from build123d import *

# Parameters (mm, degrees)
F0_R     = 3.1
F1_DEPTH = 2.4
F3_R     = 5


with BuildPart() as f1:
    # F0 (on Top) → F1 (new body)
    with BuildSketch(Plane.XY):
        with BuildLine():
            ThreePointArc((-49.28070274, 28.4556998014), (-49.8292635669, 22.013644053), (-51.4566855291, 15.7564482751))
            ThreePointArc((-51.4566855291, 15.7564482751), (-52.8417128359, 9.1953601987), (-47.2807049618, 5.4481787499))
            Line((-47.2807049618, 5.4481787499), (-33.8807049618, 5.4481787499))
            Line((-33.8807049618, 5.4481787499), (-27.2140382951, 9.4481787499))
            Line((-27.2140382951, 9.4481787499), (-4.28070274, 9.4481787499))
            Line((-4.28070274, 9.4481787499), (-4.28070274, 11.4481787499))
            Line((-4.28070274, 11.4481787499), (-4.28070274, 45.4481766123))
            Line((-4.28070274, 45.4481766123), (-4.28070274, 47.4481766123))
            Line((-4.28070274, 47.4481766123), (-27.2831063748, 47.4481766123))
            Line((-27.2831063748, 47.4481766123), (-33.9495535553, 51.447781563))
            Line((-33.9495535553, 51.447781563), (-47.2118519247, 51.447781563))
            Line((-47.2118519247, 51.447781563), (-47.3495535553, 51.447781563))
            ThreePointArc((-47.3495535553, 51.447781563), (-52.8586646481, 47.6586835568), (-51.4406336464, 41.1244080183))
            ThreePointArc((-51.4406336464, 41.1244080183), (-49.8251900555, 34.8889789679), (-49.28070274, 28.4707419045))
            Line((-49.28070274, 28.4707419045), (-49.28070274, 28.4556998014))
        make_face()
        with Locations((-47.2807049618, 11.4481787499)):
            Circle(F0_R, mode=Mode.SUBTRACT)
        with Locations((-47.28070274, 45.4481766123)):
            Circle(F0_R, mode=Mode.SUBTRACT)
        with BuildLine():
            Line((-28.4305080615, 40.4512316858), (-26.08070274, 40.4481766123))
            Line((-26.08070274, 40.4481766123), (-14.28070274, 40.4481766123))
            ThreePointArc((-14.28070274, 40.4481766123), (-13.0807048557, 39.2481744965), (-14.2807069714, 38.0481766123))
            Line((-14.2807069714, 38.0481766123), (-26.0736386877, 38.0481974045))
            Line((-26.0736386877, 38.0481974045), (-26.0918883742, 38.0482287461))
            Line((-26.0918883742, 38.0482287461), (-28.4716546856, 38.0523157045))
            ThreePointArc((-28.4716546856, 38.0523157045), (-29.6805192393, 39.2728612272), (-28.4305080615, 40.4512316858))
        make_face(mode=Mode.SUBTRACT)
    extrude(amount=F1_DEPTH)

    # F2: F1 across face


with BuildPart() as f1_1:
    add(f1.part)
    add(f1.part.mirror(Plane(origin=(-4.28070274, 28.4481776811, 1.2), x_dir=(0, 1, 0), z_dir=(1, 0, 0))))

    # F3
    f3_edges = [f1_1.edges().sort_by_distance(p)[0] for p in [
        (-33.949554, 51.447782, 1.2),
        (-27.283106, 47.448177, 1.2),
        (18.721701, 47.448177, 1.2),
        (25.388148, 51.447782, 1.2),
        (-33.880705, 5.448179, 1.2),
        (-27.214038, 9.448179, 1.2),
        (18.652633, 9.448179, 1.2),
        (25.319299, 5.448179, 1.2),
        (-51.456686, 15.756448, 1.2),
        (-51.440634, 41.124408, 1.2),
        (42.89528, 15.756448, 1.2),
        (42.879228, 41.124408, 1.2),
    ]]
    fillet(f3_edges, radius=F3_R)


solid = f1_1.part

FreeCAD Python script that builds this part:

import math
import FreeCAD as App
import Part
import Sketcher
from FreeCAD import Vector
Q = App.Units.Quantity


def edges_at(feature, points):
    """Names of the edges that pass closest to the given points."""
    edges = feature.Shape.Edges
    near = lambda p: min(range(len(edges)), key=lambda i: edges[i].distToShape(Part.Vertex(*p))[0])
    return sorted({f"Edge{near(p) + 1}" for p in points})

doc = App.newDocument("Part")
params = doc.addObject("Spreadsheet::Sheet", "Params")
for row, (alias, value) in enumerate([
    ("sketch1_radius", "6 mm"),
    ("sketch1_radius2", "6 mm"),
    ("sketch1_diameter", "6.2 mm"),
    ("sketch1_diameter2", "6.2 mm"),
    ("sketch1_radius3", "1.2 mm"),
    ("pad1_length", "2.4 mm"),
    ("fillet_radius", "5 mm"),
], start=1):
    params.set(f"A{row}", alias)
    params.set(f"B{row}", "=" + value)
    params.setAlias(f"B{row}", alias)

body = doc.addObject("PartDesign::Body", "Body")

sketch1 = body.newObject("Sketcher::SketchObject", "Sketch")
sketch1.AttachmentSupport = (doc.getObject("XY_Plane"), [""])
sketch1.MapMode = "FlatFace"
sketch1.addGeometry(Part.ArcOfCircle(Part.Circle(Vector(-87.469634, 28.463221, 0), Vector(0, 0, 1), 38.188932), math.radians(-19.434829), math.radians(-0.011284)), False)
sketch1.addGeometry(Part.ArcOfCircle(Part.Circle(Vector(-47.280705, 11.448179, 0), Vector(0, 0, 1), 6), math.radians(134.1067), math.radians(270)), False)
sketch1.addGeometry(Part.LineSegment(Vector(-47.280705, 5.448179, 0), Vector(-33.880705, 5.448179, 0)), False)
sketch1.addGeometry(Part.LineSegment(Vector(-33.880705, 5.448179, 0), Vector(-27.214038, 9.448179, 0)), False)
sketch1.addGeometry(Part.LineSegment(Vector(-27.214038, 9.448179, 0), Vector(-4.280703, 9.448179, 0)), False)
sketch1.addGeometry(Part.LineSegment(Vector(-4.280703, 9.448179, 0), Vector(-4.280703, 47.448177, 0)), False)
sketch1.addGeometry(Part.LineSegment(Vector(-4.280703, 47.448177, 0), Vector(-27.283106, 47.448177, 0)), False)
sketch1.addGeometry(Part.LineSegment(Vector(-27.283106, 47.448177, 0), Vector(-33.949554, 51.447782, 0)), False)
sketch1.addGeometry(Part.LineSegment(Vector(-33.949554, 51.447782, 0), Vector(-47.349554, 51.447782, 0)), False)
sketch1.addGeometry(Part.ArcOfCircle(Part.Circle(Vector(-47.280703, 45.448177, 0), Vector(0, 0, 1), 6), math.radians(90.657491), math.radians(226.106362)), False)
sketch1.addGeometry(Part.ArcOfCircle(Part.Circle(Vector(-87.469634, 28.463221, 0), Vector(0, 0, 1), 38.188932), math.radians(0.011284), math.radians(19.36232)), False)
sketch1.addGeometry(Part.LineSegment(Vector(-49.280703, 28.470742, 0), Vector(-49.280703, 28.4557, 0)), False)
sketch1.addGeometry(Part.Circle(Vector(-47.280705, 11.448179, 0), Vector(0, 0, 1), 3.1), False)
sketch1.addGeometry(Part.Circle(Vector(-47.280703, 45.448177, 0), Vector(0, 0, 1), 3.1), False)
sketch1.addGeometry(Part.ArcOfCircle(Part.Circle(Vector(-28.480696, 39.252282, 0), Vector(0, 0, 1), 1.2), math.radians(87.603017), math.radians(270.431682)), False)
sketch1.addGeometry(Part.LineSegment(Vector(-28.430508, 40.451232, 0), Vector(-26.080703, 40.448177, 0)), False)
sketch1.addGeometry(Part.LineSegment(Vector(-26.080703, 40.448177, 0), Vector(-14.280703, 40.448177, 0)), False)
sketch1.addGeometry(Part.ArcOfCircle(Part.Circle(Vector(-14.280705, 39.248177, 0), Vector(0, 0, 1), 1.2), math.radians(-90.000101), math.radians(89.999899)), False)
sketch1.addGeometry(Part.LineSegment(Vector(-14.280707, 38.048177, 0), Vector(-26.073639, 38.048197, 0)), False)
sketch1.addGeometry(Part.LineSegment(Vector(-26.073639, 38.048197, 0), Vector(-26.091888, 38.048229, 0)), False)
sketch1.addGeometry(Part.LineSegment(Vector(-26.091888, 38.048229, 0), Vector(-28.471655, 38.052316, 0)), False)
sketch1.addConstraint(Sketcher.Constraint("Coincident", 0, 1, 1, 1))
sketch1.addConstraint(Sketcher.Constraint("Coincident", 1, 2, 2, 1))
sketch1.addConstraint(Sketcher.Constraint("Coincident", 2, 2, 3, 1))
sketch1.addConstraint(Sketcher.Constraint("Coincident", 3, 2, 4, 1))
sketch1.addConstraint(Sketcher.Constraint("Coincident", 4, 2, 5, 1))
sketch1.addConstraint(Sketcher.Constraint("Coincident", 5, 2, 6, 1))
sketch1.addConstraint(Sketcher.Constraint("Coincident", 6, 2, 7, 1))
sketch1.addConstraint(Sketcher.Constraint("Coincident", 7, 2, 8, 1))
sketch1.addConstraint(Sketcher.Constraint("Coincident", 8, 2, 9, 1))
sketch1.addConstraint(Sketcher.Constraint("Coincident", 9, 2, 10, 2))
sketch1.addConstraint(Sketcher.Constraint("Coincident", 10, 1, 11, 1))
sketch1.addConstraint(Sketcher.Constraint("Coincident", 11, 2, 0, 2))
sketch1.addConstraint(Sketcher.Constraint("Coincident", 14, 1, 15, 1))
sketch1.addConstraint(Sketcher.Constraint("Coincident", 15, 2, 16, 1))
sketch1.addConstraint(Sketcher.Constraint("Coincident", 16, 2, 17, 2))
sketch1.addConstraint(Sketcher.Constraint("Coincident", 17, 1, 18, 1))
sketch1.addConstraint(Sketcher.Constraint("Coincident", 18, 2, 19, 1))
sketch1.addConstraint(Sketcher.Constraint("Coincident", 19, 2, 20, 1))
sketch1.addConstraint(Sketcher.Constraint("Coincident", 20, 2, 14, 2))
sketch1.addConstraint(Sketcher.Constraint("Horizontal", 2))
sketch1.addConstraint(Sketcher.Constraint("Horizontal", 4))
sketch1.addConstraint(Sketcher.Constraint("Vertical", 5))
sketch1.addConstraint(Sketcher.Constraint("Horizontal", 6))
sketch1.addConstraint(Sketcher.Constraint("Horizontal", 8))
sketch1.addConstraint(Sketcher.Constraint("Vertical", 11))
sketch1.addConstraint(Sketcher.Constraint("Horizontal", 16))
sketch1.addConstraint(Sketcher.Constraint("Coincident", 10, 3, 0, 3))
sketch1.addConstraint(Sketcher.Constraint("Coincident", 12, 3, 1, 3))
sketch1.addConstraint(Sketcher.Constraint("Coincident", 13, 3, 9, 3))
sketch1.addConstraint(Sketcher.Constraint("Radius", 1, Q("6 mm")))
sketch1.addConstraint(Sketcher.Constraint("Radius", 9, Q("6 mm")))
sketch1.addConstraint(Sketcher.Constraint("Diameter", 12, Q("6.2 mm")))
sketch1.addConstraint(Sketcher.Constraint("Diameter", 13, Q("6.2 mm")))
sketch1.addConstraint(Sketcher.Constraint("Radius", 14, Q("1.2 mm")))
sketch1.addConstraint(Sketcher.Constraint("Radius", 17, Q("1.2 mm")))
sketch1.addConstraint(Sketcher.Constraint("DistanceX", 2, 1, 2, 2, Q("13.4 mm")))
sketch1.addConstraint(Sketcher.Constraint("DistanceX", 8, 2, 8, 1, Q("13.4 mm")))
sketch1.addConstraint(Sketcher.Constraint("DistanceX", 16, 1, 16, 2, Q("11.8 mm")))
sketch1.addConstraint(Sketcher.Constraint("DistanceX", 1, 3, 17, 3, Q("33 mm")))
sketch1.addConstraint(Sketcher.Constraint("DistanceY", 2, 2, 3, 2, Q("4 mm")))
sketch1.addConstraint(Sketcher.Constraint("DistanceX", 9, 3, 5, 2, Q("43 mm")))
sketch1.addConstraint(Sketcher.Constraint("DistanceY", 9, 3, 5, 2, Q("2 mm")))
sketch1.addConstraint(Sketcher.Constraint("DistanceX", 10, 1, 9, 3, Q("2 mm")))
sketch1.addConstraint(Sketcher.Constraint("DistanceY", 15, 2, 6, 2, Q("7 mm")))
sketch1.addConstraint(Sketcher.Constraint("DistanceX", 16, 2, 5, 2, Q("10 mm")))
sketch1.addConstraint(Sketcher.Constraint("DistanceX", 1, 3, 2, 2, Q("13.4 mm")))
sketch1.addConstraint(Sketcher.Constraint("Radius", 0, Q("38.188932 mm")))
sketch1.addConstraint(Sketcher.Constraint("DistanceY", -1, 1, 11, 2, Q("28.4557 mm")))
sketch1.addConstraint(Sketcher.Constraint("DistanceX", 6, 2, 17, 3, Q("13.002402 mm")))
sketch1.addConstraint(Sketcher.Constraint("DistanceY", 14, 3, 7, 2, Q("12.1955 mm")))
sketch1.addConstraint(Sketcher.Constraint("DistanceX", 14, 1, 6, 2, Q("1.147402 mm")))
sketch1.addConstraint(Sketcher.Constraint("Distance", 7, Q("7.774211 mm")))
sketch1.addConstraint(Sketcher.Constraint("Distance", 18, Q("11.792932 mm")))
sketch1.addConstraint(Sketcher.Constraint("Distance", 19, Q("0.01825 mm")))
sketch1.addConstraint(Sketcher.Constraint("Distance", 20, Q("2.37977 mm")))
sketch1.addConstraint(Sketcher.Constraint("DistanceX", 4, 1, 4, 2, Q("22.933336 mm")))
sketch1.addConstraint(Sketcher.Constraint("DistanceX", 6, 2, 6, 1, Q("23.002404 mm")))
sketch1.addConstraint(Sketcher.Constraint("DistanceY", 5, 1, 5, 2, Q("37.999998 mm")))
sketch1.addConstraint(Sketcher.Constraint("DistanceY", 11, 2, 11, 1, Q("0.015042 mm")))
sketch1.addConstraint(Sketcher.Constraint("DistanceY", -1, 1, 0, 3, Q("28.463221 mm")))
sketch1.addConstraint(Sketcher.Constraint("DistanceY", -1, 1, 1, 3, Q("11.448179 mm")))
sketch1.addConstraint(Sketcher.Constraint("DistanceX", 3, 2, -1, 1, Q("27.214038 mm")))
sketch1.addConstraint(Sketcher.Constraint("DistanceY", -1, 1, 14, 1, Q("40.451232 mm")))
sketch1.addConstraint(Sketcher.Constraint("DistanceX", 18, 2, -1, 1, Q("26.073639 mm")))
sketch1.addConstraint(Sketcher.Constraint("DistanceY", -1, 1, 19, 2, Q("38.048229 mm")))
sketch1.addConstraint(Sketcher.Constraint("DistanceY", 18, 2, 15, 2, Q("2.399979 mm")))
sketch1.setExpression("Constraints[29]", "Params.sketch1_radius")
sketch1.setExpression("Constraints[30]", "Params.sketch1_radius2")
sketch1.setExpression("Constraints[31]", "Params.sketch1_diameter")
sketch1.setExpression("Constraints[32]", "Params.sketch1_diameter2")
sketch1.setExpression("Constraints[33]", "Params.sketch1_radius3")
pad1 = body.newObject("PartDesign::Pad", "Pad")
pad1.Profile = sketch1
pad1.setExpression("Length", "Params.pad1_length")
body2 = doc.addObject("PartDesign::Body", "Body001")
doc.recompute()

body2.BaseFeature = body
doc.recompute()

mirroring = doc.addObject("Part::Mirroring", "Mirroring")
mirroring.Source = body
mirroring.Base = Vector(-4.280703, 28.448178, 1.2)
mirroring.Normal = Vector(1, 0, 0)
body3 = doc.addObject("PartDesign::Body", "Body002")
body3.BaseFeature = mirroring
boolean = body2.newObject("PartDesign::Boolean", "Boolean")
boolean.Type = "Fuse"
boolean.addObjects([body3])
doc.recompute()

fillet = body2.newObject("PartDesign::Fillet", "Fillet")
fillet.Base = (boolean, edges_at(boolean, [
    (-33.95, 51.448, 1.2),
    (-27.283, 47.448, 1.2),
    (18.722, 47.448, 1.2),
    (25.388, 51.448, 1.2),
    (-33.881, 5.448, 1.2),
    (-27.214, 9.448, 1.2),
    (18.653, 9.448, 1.2),
    (25.319, 5.448, 1.2),
    (-51.457, 15.756, 1.2),
    (-51.441, 41.124, 1.2),
    (42.895, 15.756, 1.2),
    (42.879, 41.124, 1.2),
]))
fillet.setExpression("Radius", "Params.fillet_radius")
mirroring.Visibility = False

doc.recompute()
